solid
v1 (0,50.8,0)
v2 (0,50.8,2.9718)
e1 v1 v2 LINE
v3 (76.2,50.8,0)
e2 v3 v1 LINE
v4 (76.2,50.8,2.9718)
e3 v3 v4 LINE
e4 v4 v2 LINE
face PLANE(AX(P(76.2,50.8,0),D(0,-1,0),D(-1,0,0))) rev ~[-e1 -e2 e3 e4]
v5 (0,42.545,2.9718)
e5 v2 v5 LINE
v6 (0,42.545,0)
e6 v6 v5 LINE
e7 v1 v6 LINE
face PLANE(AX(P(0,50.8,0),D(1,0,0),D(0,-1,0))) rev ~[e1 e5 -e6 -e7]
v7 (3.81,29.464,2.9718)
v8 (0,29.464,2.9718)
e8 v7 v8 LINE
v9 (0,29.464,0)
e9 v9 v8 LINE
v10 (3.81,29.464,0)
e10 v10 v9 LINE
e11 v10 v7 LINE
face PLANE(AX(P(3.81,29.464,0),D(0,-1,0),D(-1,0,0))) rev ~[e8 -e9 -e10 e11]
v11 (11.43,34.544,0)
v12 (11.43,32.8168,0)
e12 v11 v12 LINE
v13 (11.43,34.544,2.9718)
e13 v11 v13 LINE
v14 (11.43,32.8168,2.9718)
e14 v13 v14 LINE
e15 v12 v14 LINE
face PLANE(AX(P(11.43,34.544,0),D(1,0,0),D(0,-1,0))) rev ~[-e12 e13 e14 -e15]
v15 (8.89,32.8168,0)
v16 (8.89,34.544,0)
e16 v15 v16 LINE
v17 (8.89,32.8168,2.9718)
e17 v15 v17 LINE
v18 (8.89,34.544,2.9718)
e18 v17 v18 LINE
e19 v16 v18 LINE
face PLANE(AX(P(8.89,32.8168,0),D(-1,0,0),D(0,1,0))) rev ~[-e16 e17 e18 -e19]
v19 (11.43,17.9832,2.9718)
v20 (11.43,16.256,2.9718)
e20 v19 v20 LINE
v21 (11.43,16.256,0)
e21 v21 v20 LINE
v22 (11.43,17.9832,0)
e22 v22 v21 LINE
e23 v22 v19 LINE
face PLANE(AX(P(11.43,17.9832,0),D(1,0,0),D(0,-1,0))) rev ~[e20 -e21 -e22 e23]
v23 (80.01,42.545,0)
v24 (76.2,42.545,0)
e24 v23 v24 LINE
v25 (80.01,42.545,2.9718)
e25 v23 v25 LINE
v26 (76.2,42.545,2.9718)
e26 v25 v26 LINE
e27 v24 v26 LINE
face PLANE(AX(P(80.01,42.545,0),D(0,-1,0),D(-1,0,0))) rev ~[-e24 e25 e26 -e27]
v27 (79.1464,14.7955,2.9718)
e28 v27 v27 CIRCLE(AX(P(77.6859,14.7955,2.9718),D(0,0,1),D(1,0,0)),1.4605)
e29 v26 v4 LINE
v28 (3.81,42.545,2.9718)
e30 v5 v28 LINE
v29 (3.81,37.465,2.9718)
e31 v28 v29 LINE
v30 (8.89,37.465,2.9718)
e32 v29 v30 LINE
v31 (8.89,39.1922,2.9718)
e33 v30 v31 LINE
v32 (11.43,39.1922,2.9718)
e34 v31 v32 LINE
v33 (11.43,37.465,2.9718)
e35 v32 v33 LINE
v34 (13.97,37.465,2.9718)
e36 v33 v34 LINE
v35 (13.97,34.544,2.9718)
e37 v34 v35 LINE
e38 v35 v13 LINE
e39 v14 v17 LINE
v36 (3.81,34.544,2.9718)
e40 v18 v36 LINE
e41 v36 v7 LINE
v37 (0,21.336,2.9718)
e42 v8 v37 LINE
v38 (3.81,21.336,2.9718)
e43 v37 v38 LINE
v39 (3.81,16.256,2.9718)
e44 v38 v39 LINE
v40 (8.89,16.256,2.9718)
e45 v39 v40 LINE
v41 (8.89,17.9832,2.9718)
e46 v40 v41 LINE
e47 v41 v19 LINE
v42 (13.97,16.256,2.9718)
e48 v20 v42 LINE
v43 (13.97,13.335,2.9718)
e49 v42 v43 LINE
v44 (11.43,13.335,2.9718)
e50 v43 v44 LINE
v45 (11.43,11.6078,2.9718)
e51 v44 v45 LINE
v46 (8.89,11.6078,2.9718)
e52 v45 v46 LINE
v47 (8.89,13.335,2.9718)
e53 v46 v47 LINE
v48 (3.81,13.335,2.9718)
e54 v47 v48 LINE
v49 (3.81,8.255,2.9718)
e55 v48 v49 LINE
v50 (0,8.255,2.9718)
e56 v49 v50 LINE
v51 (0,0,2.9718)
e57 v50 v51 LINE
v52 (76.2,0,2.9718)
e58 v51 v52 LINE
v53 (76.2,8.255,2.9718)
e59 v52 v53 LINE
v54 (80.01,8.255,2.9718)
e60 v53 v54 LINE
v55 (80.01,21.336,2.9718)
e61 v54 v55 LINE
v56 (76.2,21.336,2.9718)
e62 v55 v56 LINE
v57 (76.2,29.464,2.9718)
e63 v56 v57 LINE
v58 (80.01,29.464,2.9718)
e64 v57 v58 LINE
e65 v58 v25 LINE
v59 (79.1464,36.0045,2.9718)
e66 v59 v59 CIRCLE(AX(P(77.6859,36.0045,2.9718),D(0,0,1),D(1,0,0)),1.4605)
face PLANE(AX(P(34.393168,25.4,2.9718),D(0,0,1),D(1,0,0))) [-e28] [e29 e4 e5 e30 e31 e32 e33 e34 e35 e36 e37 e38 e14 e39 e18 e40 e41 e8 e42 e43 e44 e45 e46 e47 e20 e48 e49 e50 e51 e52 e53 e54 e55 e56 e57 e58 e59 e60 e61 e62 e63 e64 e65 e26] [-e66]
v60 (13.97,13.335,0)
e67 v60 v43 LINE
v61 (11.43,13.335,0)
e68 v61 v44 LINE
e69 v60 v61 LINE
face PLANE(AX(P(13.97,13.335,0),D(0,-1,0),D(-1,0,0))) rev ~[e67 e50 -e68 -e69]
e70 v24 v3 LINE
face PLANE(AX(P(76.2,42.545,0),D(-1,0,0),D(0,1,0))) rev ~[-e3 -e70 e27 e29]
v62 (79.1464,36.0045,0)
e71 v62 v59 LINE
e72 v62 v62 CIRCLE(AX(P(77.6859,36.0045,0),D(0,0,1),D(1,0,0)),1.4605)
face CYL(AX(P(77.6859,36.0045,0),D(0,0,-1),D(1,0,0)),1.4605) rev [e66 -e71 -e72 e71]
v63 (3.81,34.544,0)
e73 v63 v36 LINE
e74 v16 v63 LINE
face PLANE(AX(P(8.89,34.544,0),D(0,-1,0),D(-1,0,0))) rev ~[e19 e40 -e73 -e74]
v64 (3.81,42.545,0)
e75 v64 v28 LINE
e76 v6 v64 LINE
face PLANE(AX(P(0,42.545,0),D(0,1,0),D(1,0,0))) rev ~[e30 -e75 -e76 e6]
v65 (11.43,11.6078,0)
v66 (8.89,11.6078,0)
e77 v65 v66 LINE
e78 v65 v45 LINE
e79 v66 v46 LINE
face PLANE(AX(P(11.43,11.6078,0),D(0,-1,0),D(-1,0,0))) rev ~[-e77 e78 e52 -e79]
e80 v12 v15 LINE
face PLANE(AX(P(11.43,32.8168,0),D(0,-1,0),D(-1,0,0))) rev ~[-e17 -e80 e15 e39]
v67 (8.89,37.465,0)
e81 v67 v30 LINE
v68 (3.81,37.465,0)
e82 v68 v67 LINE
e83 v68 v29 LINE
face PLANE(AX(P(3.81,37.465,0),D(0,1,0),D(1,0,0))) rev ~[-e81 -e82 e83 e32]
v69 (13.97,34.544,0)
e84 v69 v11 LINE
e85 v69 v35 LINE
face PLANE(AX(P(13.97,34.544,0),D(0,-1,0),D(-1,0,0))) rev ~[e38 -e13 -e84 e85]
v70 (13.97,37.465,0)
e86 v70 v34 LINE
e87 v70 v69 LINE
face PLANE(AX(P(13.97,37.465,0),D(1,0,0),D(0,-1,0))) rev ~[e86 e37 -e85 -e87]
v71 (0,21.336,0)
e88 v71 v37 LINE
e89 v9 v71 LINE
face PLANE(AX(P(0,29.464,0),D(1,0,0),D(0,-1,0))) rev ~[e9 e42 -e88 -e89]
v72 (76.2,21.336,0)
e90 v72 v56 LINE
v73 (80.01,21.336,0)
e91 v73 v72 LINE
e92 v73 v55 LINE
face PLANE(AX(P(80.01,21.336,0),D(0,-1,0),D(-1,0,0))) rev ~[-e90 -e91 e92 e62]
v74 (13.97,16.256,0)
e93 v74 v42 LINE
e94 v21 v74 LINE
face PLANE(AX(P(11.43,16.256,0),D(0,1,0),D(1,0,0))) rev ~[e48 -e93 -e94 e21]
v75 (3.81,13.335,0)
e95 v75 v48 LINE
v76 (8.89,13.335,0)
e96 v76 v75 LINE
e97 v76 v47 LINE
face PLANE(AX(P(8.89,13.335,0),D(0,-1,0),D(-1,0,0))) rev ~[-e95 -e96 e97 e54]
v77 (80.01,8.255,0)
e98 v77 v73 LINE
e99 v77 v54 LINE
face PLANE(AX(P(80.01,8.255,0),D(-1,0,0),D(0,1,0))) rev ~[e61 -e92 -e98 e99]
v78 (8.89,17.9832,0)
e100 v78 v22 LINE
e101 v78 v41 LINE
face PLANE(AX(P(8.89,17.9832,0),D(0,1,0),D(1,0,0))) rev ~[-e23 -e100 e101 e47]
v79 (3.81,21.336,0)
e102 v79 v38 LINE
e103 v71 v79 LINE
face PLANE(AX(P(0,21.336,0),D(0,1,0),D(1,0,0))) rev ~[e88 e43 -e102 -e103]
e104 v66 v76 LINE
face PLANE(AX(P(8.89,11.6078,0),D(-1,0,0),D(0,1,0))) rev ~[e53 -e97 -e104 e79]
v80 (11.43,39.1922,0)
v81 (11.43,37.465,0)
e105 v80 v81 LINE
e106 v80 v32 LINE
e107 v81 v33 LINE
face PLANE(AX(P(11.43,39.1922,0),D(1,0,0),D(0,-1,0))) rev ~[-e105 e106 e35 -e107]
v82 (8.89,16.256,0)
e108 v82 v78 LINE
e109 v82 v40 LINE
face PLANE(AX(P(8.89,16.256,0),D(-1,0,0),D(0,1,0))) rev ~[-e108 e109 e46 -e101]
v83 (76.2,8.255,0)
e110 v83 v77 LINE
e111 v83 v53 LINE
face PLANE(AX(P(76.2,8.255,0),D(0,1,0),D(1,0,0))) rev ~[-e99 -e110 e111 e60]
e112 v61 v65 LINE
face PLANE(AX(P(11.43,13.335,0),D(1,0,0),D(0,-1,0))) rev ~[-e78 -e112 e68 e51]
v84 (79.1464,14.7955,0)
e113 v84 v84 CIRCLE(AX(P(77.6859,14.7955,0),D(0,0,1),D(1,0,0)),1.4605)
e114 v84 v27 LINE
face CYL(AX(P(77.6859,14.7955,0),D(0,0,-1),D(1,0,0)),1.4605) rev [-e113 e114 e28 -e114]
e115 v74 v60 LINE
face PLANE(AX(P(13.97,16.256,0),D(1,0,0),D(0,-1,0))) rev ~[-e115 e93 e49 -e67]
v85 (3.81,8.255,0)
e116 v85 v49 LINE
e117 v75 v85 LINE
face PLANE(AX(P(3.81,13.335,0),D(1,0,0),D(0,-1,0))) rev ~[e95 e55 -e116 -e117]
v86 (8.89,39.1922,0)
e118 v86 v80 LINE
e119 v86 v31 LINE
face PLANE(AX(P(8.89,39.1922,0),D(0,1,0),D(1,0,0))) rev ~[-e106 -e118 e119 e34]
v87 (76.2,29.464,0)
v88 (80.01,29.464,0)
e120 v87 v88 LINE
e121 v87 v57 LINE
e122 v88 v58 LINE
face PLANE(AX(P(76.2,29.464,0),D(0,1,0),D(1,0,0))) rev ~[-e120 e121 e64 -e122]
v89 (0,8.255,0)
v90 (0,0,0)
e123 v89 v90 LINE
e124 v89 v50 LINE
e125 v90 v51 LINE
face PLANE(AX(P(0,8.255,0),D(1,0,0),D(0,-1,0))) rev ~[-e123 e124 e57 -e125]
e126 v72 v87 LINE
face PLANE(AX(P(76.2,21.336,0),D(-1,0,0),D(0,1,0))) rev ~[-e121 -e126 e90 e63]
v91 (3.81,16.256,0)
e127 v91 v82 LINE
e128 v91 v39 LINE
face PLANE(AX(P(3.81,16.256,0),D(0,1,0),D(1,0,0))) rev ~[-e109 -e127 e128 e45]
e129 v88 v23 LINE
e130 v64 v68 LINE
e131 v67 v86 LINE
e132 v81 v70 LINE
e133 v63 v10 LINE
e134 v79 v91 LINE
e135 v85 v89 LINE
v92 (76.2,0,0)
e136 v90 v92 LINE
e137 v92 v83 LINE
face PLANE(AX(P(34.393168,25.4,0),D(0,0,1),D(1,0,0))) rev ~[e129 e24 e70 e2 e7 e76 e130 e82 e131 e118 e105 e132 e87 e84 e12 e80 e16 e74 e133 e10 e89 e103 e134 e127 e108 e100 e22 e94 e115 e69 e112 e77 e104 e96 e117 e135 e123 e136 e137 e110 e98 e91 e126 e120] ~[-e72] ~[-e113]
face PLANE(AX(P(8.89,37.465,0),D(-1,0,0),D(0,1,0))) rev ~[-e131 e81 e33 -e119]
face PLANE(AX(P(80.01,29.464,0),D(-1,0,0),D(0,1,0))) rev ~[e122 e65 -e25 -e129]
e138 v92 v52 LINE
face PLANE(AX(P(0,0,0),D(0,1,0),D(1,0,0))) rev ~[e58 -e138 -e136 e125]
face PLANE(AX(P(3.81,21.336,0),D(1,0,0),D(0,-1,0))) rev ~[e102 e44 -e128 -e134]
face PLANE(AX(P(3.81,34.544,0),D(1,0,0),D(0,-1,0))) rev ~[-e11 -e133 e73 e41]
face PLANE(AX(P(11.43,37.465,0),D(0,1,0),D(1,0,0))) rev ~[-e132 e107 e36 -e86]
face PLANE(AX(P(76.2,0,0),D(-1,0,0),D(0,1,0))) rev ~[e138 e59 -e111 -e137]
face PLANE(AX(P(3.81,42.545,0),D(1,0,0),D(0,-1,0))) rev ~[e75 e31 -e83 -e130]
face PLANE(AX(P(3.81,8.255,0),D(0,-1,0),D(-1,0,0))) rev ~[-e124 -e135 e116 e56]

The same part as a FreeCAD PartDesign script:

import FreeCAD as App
import Part
import Sketcher
from FreeCAD import Vector
Q = App.Units.Quantity

doc = App.newDocument("Part")
body = doc.addObject("PartDesign::Body", "Body")

# Sketch on XY plane
sketch1 = body.newObject("Sketcher::SketchObject", "Sketch")
sketch1.AttachmentSupport = (doc.getObject("XY_Plane"), [""])
sketch1.MapMode = "FlatFace"
sketch1.addGeometry([
    Part.LineSegment(Vector(0, 8.3, 0), Vector(0, 0, 0)),  # 0
    Part.LineSegment(Vector(0, 0, 0), Vector(76.2, 0, 0)),  # 1
    Part.LineSegment(Vector(76.2, 0, 0), Vector(76.2, 8.3, 0)),  # 2
    Part.LineSegment(Vector(76.2, 8.3, 0), Vector(80, 8.3, 0)),  # 3
    Part.LineSegment(Vector(80, 8.3, 0), Vector(80, 21.3, 0)),  # 4
    Part.LineSegment(Vector(80, 21.3, 0), Vector(76.2, 21.3, 0)),  # 5
    Part.LineSegment(Vector(76.2, 21.3, 0), Vector(76.2, 29.5, 0)),  # 6
    Part.LineSegment(Vector(76.2, 29.5, 0), Vector(80, 29.5, 0)),  # 7
    Part.LineSegment(Vector(80, 29.5, 0), Vector(80, 42.5, 0)),  # 8
    Part.LineSegment(Vector(80, 42.5, 0), Vector(76.2, 42.5, 0)),  # 9
    Part.LineSegment(Vector(76.2, 42.5, 0), Vector(76.2, 50.8, 0)),  # 10
    Part.LineSegment(Vector(76.2, 50.8, 0), Vector(0, 50.8, 0)),  # 11
    Part.LineSegment(Vector(0, 50.8, 0), Vector(0, 42.5, 0)),  # 12
    Part.LineSegment(Vector(0, 42.5, 0), Vector(3.8, 42.5, 0)),  # 13
    Part.LineSegment(Vector(3.8, 42.5, 0), Vector(3.8, 37.5, 0)),  # 14
    Part.LineSegment(Vector(3.8, 37.5, 0), Vector(8.9, 37.5, 0)),  # 15
    Part.LineSegment(Vector(8.9, 37.5, 0), Vector(8.9, 39.2, 0)),  # 16
    Part.LineSegment(Vector(8.9, 39.2, 0), Vector(11.4, 39.2, 0)),  # 17
    Part.LineSegment(Vector(11.4, 39.2, 0), Vector(11.4, 37.5, 0)),  # 18
    Part.LineSegment(Vector(11.4, 37.5, 0), Vector(14, 37.5, 0)),  # 19
    Part.LineSegment(Vector(14, 37.5, 0), Vector(14, 34.5, 0)),  # 20
    Part.LineSegment(Vector(14, 34.5, 0), Vector(11.4, 34.5, 0)),  # 21
    Part.LineSegment(Vector(11.4, 34.5, 0), Vector(11.4, 32.8, 0)),  # 22
    Part.LineSegment(Vector(11.4, 32.8, 0), Vector(8.9, 32.8, 0)),  # 23
    Part.LineSegment(Vector(8.9, 32.8, 0), Vector(8.9, 34.5, 0)),  # 24
    Part.LineSegment(Vector(8.9, 34.5, 0), Vector(3.8, 34.5, 0)),  # 25
    Part.LineSegment(Vector(3.8, 34.5, 0), Vector(3.8, 29.5, 0)),  # 26
    Part.LineSegment(Vector(3.8, 29.5, 0), Vector(0, 29.5, 0)),  # 27
    Part.LineSegment(Vector(0, 29.5, 0), Vector(0, 21.3, 0)),  # 28
    Part.LineSegment(Vector(0, 21.3, 0), Vector(3.8, 21.3, 0)),  # 29
    Part.LineSegment(Vector(3.8, 21.3, 0), Vector(3.8, 16.3, 0)),  # 30
    Part.LineSegment(Vector(3.8, 16.3, 0), Vector(8.9, 16.3, 0)),  # 31
    Part.LineSegment(Vector(8.9, 16.3, 0), Vector(8.9, 18, 0)),  # 32
    Part.LineSegment(Vector(8.9, 18, 0), Vector(11.4, 18, 0)),  # 33
    Part.LineSegment(Vector(11.4, 18, 0), Vector(11.4, 16.3, 0)),  # 34
    Part.LineSegment(Vector(11.4, 16.3, 0), Vector(14, 16.3, 0)),  # 35
    Part.LineSegment(Vector(14, 16.3, 0), Vector(14, 13.3, 0)),  # 36
    Part.LineSegment(Vector(14, 13.3, 0), Vector(11.4, 13.3, 0)),  # 37
    Part.LineSegment(Vector(11.4, 13.3, 0), Vector(11.4, 11.6, 0)),  # 38
    Part.LineSegment(Vector(11.4, 11.6, 0), Vector(8.9, 11.6, 0)),  # 39
    Part.LineSegment(Vector(8.9, 11.6, 0), Vector(8.9, 13.3, 0)),  # 40
    Part.LineSegment(Vector(8.9, 13.3, 0), Vector(3.8, 13.3, 0)),  # 41
    Part.LineSegment(Vector(3.8, 13.3, 0), Vector(3.8, 8.3, 0)),  # 42
    Part.LineSegment(Vector(3.8, 8.3, 0), Vector(0, 8.3, 0)),  # 43
    Part.Circle(Vector(77.7, 14.8, 0), Vector(0, 0, 1), 1.5),  # 44
    Part.Circle(Vector(77.7, 36, 0), Vector(0, 0, 1), 1.5),  # 45
], False)
sketch1.addConstraint([
    Sketcher.Constraint("Coincident", 0, 2, 1, 1),
    Sketcher.Constraint("Coincident", 1, 2, 2, 1),
    Sketcher.Constraint("Coincident", 2, 2, 3, 1),
    Sketcher.Constraint("Coincident", 3, 2, 4, 1),
    Sketcher.Constraint("Coincident", 4, 2, 5, 1),
    Sketcher.Constraint("Coincident", 5, 2, 6, 1),
    Sketcher.Constraint("Coincident", 6, 2, 7, 1),
    Sketcher.Constraint("Coincident", 7, 2, 8, 1),
    Sketcher.Constraint("Coincident", 8, 2, 9, 1),
    Sketcher.Constraint("Coincident", 9, 2, 10, 1),
    Sketcher.Constraint("Coincident", 10, 2, 11, 1),
    Sketcher.Constraint("Coincident", 11, 2, 12, 1),
    Sketcher.Constraint("Coincident", 12, 2, 13, 1),
    Sketcher.Constraint("Coincident", 13, 2, 14, 1),
    Sketcher.Constraint("Coincident", 14, 2, 15, 1),
    Sketcher.Constraint("Coincident", 15, 2, 16, 1),
    Sketcher.Constraint("Coincident", 16, 2, 17, 1),
    Sketcher.Constraint("Coincident", 17, 2, 18, 1),
    Sketcher.Constraint("Coincident", 18, 2, 19, 1),
    Sketcher.Constraint("Coincident", 19, 2, 20, 1),
    Sketcher.Constraint("Coincident", 20, 2, 21, 1),
    Sketcher.Constraint("Coincident", 21, 2, 22, 1),
    Sketcher.Constraint("Coincident", 22, 2, 23, 1),
    Sketcher.Constraint("Coincident", 23, 2, 24, 1),
    Sketcher.Constraint("Coincident", 24, 2, 25, 1),
    Sketcher.Constraint("Coincident", 25, 2, 26, 1),
    Sketcher.Constraint("Coincident", 26, 2, 27, 1),
    Sketcher.Constraint("Coincident", 27, 2, 28, 1),
    Sketcher.Constraint("Coincident", 28, 2, 29, 1),
    Sketcher.Constraint("Coincident", 29, 2, 30, 1),
    Sketcher.Constraint("Coincident", 30, 2, 31, 1),
    Sketcher.Constraint("Coincident", 31, 2, 32, 1),
    Sketcher.Constraint("Coincident", 32, 2, 33, 1),
    Sketcher.Constraint("Coincident", 33, 2, 34, 1),
    Sketcher.Constraint("Coincident", 34, 2, 35, 1),
    Sketcher.Constraint("Coincident", 35, 2, 36, 1),
    Sketcher.Constraint("Coincident", 36, 2, 37, 1),
    Sketcher.Constraint("Coincident", 37, 2, 38, 1),
    Sketcher.Constraint("Coincident", 38, 2, 39, 1),
    Sketcher.Constraint("Coincident", 39, 2, 40, 1),
    Sketcher.Constraint("Coincident", 40, 2, 41, 1),
    Sketcher.Constraint("Coincident", 41, 2, 42, 1),
    Sketcher.Constraint("Coincident", 42, 2, 43, 1),
    Sketcher.Constraint("Coincident", 43, 2, 0, 1),
    Sketcher.Constraint("Vertical", 0),
    Sketcher.Constraint("Horizontal", 1),
    Sketcher.Constraint("Vertical", 2),
    Sketcher.Constraint("Horizontal", 3),
    Sketcher.Constraint("Vertical", 4),
    Sketcher.Constraint("Horizontal", 5),
    Sketcher.Constraint("Vertical", 6),
    Sketcher.Constraint("Horizontal", 7),
    Sketcher.Constraint("Vertical", 8),
    Sketcher.Constraint("Horizontal", 9),
    Sketcher.Constraint("Vertical", 10),
    Sketcher.Constraint("Horizontal", 11),
    Sketcher.Constraint("Vertical", 12),
    Sketcher.Constraint("Horizontal", 13),
    Sketcher.Constraint("Vertical", 14),
    Sketcher.Constraint("Horizontal", 15),
    Sketcher.Constraint("Vertical", 16),
    Sketcher.Constraint("Horizontal", 17),
    Sketcher.Constraint("Vertical", 18),
    Sketcher.Constraint("Horizontal", 19),
    Sketcher.Constraint("Vertical", 20),
    Sketcher.Constraint("Horizontal", 21),
    Sketcher.Constraint("Vertical", 22),
    Sketcher.Constraint("Horizontal", 23),
    Sketcher.Constraint("Vertical", 24),
    Sketcher.Constraint("Horizontal", 25),
    Sketcher.Constraint("Vertical", 26),
    Sketcher.Constraint("Horizontal", 27),
    Sketcher.Constraint("Vertical", 28),
    Sketcher.Constraint("Horizontal", 29),
    Sketcher.Constraint("Vertical", 30),
    Sketcher.Constraint("Horizontal", 31),
    Sketcher.Constraint("Vertical", 32),
    Sketcher.Constraint("Horizontal", 33),
    Sketcher.Constraint("Vertical", 34),
    Sketcher.Constraint("Horizontal", 35),
    Sketcher.Constraint("Vertical", 36),
    Sketcher.Constraint("Horizontal", 37),
    Sketcher.Constraint("Vertical", 38),
    Sketcher.Constraint("Horizontal", 39),
    Sketcher.Constraint("Vertical", 40),
    Sketcher.Constraint("Horizontal", 41),
    Sketcher.Constraint("Vertical", 42),
    Sketcher.Constraint("Horizontal", 43),
    Sketcher.Constraint("Coincident", 0, 2, -1, 1),
    Sketcher.Constraint("Equal", 44, 45),
    Sketcher.Constraint("PointOnObject", 11, 2, -2),
    Sketcher.Constraint("PointOnObject", 27, 2, -2),
    Sketcher.Constraint("Horizontal", 9, 2, 12, 2),
    Sketcher.Constraint("Horizontal", 15, 2, 18, 2),
    Sketcher.Constraint("Horizontal", 21, 2, 24, 2),
    Sketcher.Constraint("Horizontal", 7, 2, 26, 2),
    Sketcher.Constraint("Horizontal", 5, 2, 28, 2),
    Sketcher.Constraint("Horizontal", 31, 2, 34, 2),
    Sketcher.Constraint("Horizontal", 37, 2, 40, 2),
    Sketcher.Constraint("Horizontal", 3, 2, 42, 2),
    Sketcher.Constraint("Vertical", 44, 3, 45, 3),
    Sketcher.Constraint("Vertical", 2, 2, 5, 2),
    Sketcher.Constraint("Vertical", 4, 2, 7, 2),
    Sketcher.Constraint("Vertical", 6, 2, 9, 2),
    Sketcher.Constraint("Vertical", 18, 2, 21, 2),
    Sketcher.Constraint("Vertical", 16, 2, 23, 2),
    Sketcher.Constraint("Vertical", 14, 2, 25, 2),
    Sketcher.Constraint("Vertical", 26, 2, 29, 2),
    Sketcher.Constraint("Vertical", 24, 2, 31, 2),
    Sketcher.Constraint("Vertical", 22, 2, 33, 2),
    Sketcher.Constraint("Vertical", 20, 2, 35, 2),
    Sketcher.Constraint("Vertical", 34, 2, 37, 2),
    Sketcher.Constraint("Vertical", 32, 2, 39, 2),
    Sketcher.Constraint("Vertical", 30, 2, 41, 2),
    Sketcher.Constraint("Equal", 9, 13),
    Sketcher.Constraint("Equal", 17, 19),
    Sketcher.Constraint("Equal", 4, 8),
    Sketcher.Constraint("Equal", 2, 10),
    Sketcher.Constraint("Equal", 41, 14),
    Sketcher.Constraint("Equal", 18, 22),
    Sketcher.Constraint("Equal", 14, 26),
    Sketcher.Constraint("Equal", 26, 30),
    Sketcher.Constraint("Equal", 24, 32),
    Sketcher.Constraint("Equal", 20, 36),
    Sketcher.Constraint("Equal", 34, 38),
    Sketcher.Constraint("DistanceX", 1, 1, 1, 2, Q("3 in")),
    Sketcher.Constraint("Diameter", 44, Q("0.115 in")),
    Sketcher.Constraint("DistanceX", 15, 1, 15, 2, Q("0.2 in")),
    Sketcher.Constraint("DistanceX", 17, 1, 17, 2, Q("0.1 in")),
    Sketcher.Constraint("DistanceY", -1, 1, 10, 2, Q("2 in")),
    Sketcher.Constraint("DistanceX", 3, 1, 3, 2, Q("0.15 in")),
    Sketcher.Constraint("DistanceY", 6, 1, 6, 2, Q("0.32 in")),
    Sketcher.Constraint("DistanceY", 0, 2, 0, 1, Q("0.325 in")),
    Sketcher.Constraint("DistanceY", 16, 1, 16, 2, Q("0.068 in")),
    Sketcher.Constraint("DistanceY", 44, 3, 45, 3, Q("0.835 in")),
    Sketcher.Constraint("DistanceX", -1, 1, 44, 3, Q("3.0585 in")),
    Sketcher.Constraint("DistanceY", -1, 1, 44, 3, Q("0.5825 in")),
])
pad1 = body.newObject("PartDesign::Pad", "Pad")
pad1.Profile = sketch1
pad1.Length = Q("0.117 in")

doc.recompute()
